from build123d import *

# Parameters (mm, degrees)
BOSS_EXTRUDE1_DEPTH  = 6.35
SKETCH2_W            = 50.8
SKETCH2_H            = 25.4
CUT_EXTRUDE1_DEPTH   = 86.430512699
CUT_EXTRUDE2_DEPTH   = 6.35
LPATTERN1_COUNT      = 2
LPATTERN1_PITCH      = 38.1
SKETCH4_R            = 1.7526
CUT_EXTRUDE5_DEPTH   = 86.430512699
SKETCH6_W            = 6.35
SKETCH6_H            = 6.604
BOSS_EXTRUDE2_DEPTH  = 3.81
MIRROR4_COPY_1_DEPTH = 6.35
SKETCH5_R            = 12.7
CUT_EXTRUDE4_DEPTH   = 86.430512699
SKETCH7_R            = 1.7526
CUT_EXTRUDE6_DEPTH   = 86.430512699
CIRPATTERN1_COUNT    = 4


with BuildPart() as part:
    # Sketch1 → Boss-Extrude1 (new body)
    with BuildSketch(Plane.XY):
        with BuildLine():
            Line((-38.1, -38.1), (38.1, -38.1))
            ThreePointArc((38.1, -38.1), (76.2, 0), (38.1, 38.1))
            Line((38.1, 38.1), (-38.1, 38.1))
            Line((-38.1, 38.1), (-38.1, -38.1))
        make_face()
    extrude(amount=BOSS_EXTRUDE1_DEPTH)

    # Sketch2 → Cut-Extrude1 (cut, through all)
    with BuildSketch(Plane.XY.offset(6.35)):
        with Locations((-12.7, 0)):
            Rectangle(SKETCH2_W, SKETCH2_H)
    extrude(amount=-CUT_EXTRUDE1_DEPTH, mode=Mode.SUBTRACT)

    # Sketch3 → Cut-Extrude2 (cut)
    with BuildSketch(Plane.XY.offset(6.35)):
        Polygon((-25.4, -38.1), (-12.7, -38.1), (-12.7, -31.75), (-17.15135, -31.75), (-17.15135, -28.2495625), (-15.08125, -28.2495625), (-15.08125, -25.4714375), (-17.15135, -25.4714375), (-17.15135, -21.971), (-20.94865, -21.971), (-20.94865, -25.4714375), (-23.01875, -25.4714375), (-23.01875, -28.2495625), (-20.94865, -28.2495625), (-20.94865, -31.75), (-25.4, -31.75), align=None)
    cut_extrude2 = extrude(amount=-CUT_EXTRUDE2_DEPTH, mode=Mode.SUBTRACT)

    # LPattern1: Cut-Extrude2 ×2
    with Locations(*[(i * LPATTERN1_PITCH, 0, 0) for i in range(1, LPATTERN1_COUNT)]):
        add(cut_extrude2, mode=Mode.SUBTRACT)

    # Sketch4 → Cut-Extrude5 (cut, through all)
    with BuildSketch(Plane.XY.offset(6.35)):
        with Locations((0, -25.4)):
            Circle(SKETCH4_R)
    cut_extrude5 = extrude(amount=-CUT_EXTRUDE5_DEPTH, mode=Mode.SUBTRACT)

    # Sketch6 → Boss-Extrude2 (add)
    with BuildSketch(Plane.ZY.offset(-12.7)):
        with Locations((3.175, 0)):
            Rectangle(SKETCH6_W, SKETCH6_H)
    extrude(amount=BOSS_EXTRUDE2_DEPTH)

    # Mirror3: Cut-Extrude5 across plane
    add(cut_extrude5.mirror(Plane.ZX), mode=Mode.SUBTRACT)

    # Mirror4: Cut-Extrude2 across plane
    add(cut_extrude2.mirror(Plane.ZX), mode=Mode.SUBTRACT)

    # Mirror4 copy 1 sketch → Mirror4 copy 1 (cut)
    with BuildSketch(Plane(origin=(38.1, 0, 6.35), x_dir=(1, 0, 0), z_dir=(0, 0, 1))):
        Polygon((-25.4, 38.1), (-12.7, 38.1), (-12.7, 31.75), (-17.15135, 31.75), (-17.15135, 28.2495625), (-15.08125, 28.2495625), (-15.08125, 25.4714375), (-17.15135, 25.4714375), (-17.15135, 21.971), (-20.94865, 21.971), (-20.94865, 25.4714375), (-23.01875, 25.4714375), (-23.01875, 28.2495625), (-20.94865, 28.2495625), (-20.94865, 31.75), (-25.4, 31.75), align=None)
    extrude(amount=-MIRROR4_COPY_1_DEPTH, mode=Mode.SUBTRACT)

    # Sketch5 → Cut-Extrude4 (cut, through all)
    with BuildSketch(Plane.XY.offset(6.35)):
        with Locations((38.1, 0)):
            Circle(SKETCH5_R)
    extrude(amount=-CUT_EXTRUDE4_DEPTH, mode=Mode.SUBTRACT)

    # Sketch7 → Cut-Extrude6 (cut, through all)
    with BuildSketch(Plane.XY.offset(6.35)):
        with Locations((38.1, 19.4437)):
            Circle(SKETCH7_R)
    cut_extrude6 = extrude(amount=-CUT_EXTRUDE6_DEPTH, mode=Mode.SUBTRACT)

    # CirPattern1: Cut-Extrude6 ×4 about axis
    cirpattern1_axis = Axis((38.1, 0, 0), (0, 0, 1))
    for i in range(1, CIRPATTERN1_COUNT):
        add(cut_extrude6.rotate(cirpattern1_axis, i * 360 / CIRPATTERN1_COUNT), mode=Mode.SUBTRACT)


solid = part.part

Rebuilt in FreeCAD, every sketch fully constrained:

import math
import FreeCAD as App
import Part
import Sketcher

V = App.Vector
Q = App.Units.Quantity


def add_polygon(sketch, points):
    """Adds a closed chain of lines whose ends are joined by coincident constraints."""
    first, n = sketch.GeometryCount, len(points)
    for a, b in zip(points, points[1:] + points[:1]):
        sketch.addGeometry(Part.LineSegment(App.Vector(*a, 0), App.Vector(*b, 0)), False)
    for i in range(n):
        sketch.addConstraint(Sketcher.Constraint("Coincident", first + i, 2, first + (i + 1) % n, 1))

doc = App.newDocument("Part")
body = doc.addObject("PartDesign::Body", "Body")

sketch1 = doc.addObject("Sketcher::SketchObject", "Sketch")
body.addObject(sketch1)
sketch1.AttachmentSupport = (doc.XY_Plane, [""])
sketch1.MapMode = "FlatFace"
sketch1.addGeometry([
    Part.LineSegment(V(-38, -38, 0), V(38, -38, 0)),
    Part.ArcOfCircle(Part.Circle(V(38, 0, 0), V(0, 0, 1), 38), math.radians(-90), math.radians(90)),
    Part.LineSegment(V(38, 38, 0), V(-38, 38, 0)),
    Part.LineSegment(V(-38, 38, 0), V(-38, -38, 0)),
], False)
sketch1.addConstraint([
    Sketcher.Constraint("Tangent", 0, 2, 1, 1),
    Sketcher.Constraint("Tangent", 1, 2, 2, 1),
    Sketcher.Constraint("Coincident", 2, 2, 3, 1),
    Sketcher.Constraint("Coincident", 3, 2, 0, 1),
    Sketcher.Constraint("Horizontal", 0),
    Sketcher.Constraint("Horizontal", 2),
    Sketcher.Constraint("Vertical", 3),
    Sketcher.Constraint("Symmetric", 0, 2, 2, 2, -1, 1),
    Sketcher.Constraint("Equal", 2, 3),
    Sketcher.Constraint("Radius", 1, Q("1.5 in")),
])
pad1 = doc.addObject("PartDesign::Pad", "Pad")
body.addObject(pad1)
pad1.Profile = sketch1
pad1.Length = Q("0.25 in")

sketch2 = doc.addObject("Sketcher::SketchObject", "Sketch001")
body.addObject(sketch2)
sketch2.AttachmentSupport = (doc.XY_Plane, [""])
sketch2.MapMode = "FlatFace"
sketch2.AttachmentOffset = App.Placement(V(0, 0, 0.25 * 25.4), App.Rotation())
add_polygon(sketch2, [(-38, 13), (-38, -13), (13, -13), (13, 13)])
sketch2.addConstraint([
    Sketcher.Constraint("Vertical", 0),
    Sketcher.Constraint("Horizontal", 1),
    Sketcher.Constraint("Vertical", 2),
    Sketcher.Constraint("Horizontal", 3),
    Sketcher.Constraint("DistanceX", 1, 1, 1, 2, Q("2 in")),
    Sketcher.Constraint("DistanceY", 0, 2, 0, 1, Q("1 in")),
    Sketcher.Constraint("DistanceX", 0, 2, -1, 1, Q("1.5 in")),
    Sketcher.Constraint("DistanceY", 0, 2, -1, 1, Q("0.5 in")),
])
pocket1 = doc.addObject("PartDesign::Pocket", "Pocket")
body.addObject(pocket1)
pocket1.Profile = sketch2
pocket1.Type = "ThroughAll"

sketch3 = doc.addObject("Sketcher::SketchObject", "Sketch002")
body.addObject(sketch3)
sketch3.AttachmentSupport = (doc.XY_Plane, [""])
sketch3.MapMode = "FlatFace"
sketch3.AttachmentOffset = App.Placement(V(0, 0, 0.25 * 25.4), App.Rotation())
add_polygon(sketch3, [(-25.4, -38.1), (-12.7, -38.1), (-12.7, -31.8), (-17.2, -31.8), (-17.2, -28.2), (-15.1, -28.2), (-15.1, -25.5), (-17.2, -25.5), (-17.2, -22), (-20.9, -22), (-20.9, -25.5), (-23, -25.5), (-23, -28.2), (-20.9, -28.2), (-20.9, -31.8), (-25.4, -31.8)])
sketch3.addConstraint([
    Sketcher.Constraint("Horizontal", 0),
    Sketcher.Constraint("Vertical", 1),
    Sketcher.Constraint("Horizontal", 2),
    Sketcher.Constraint("Vertical", 3),
    Sketcher.Constraint("Horizontal", 4),
    Sketcher.Constraint("Vertical", 5),
    Sketcher.Constraint("Horizontal", 6),
    Sketcher.Constraint("Vertical", 7),
    Sketcher.Constraint("Horizontal", 8),
    Sketcher.Constraint("Vertical", 9),
    Sketcher.Constraint("Horizontal", 10),
    Sketcher.Constraint("Vertical", 11),
    Sketcher.Constraint("Horizontal", 12),
    Sketcher.Constraint("Vertical", 13),
    Sketcher.Constraint("Horizontal", 14),
    Sketcher.Constraint("Vertical", 15),
    Sketcher.Constraint("Horizontal", 6, 2, 9, 2),
    Sketcher.Constraint("Horizontal", 4, 2, 11, 2),
    Sketcher.Constraint("Horizontal", 2, 2, 13, 2),
    Sketcher.Constraint("Vertical", 3, 2, 6, 2),
    Sketcher.Constraint("Vertical", 9, 2, 12, 2),
    Sketcher.Constraint("Equal", 6, 10),
    Sketcher.Constraint("Equal", 2, 14),
    Sketcher.Constraint("Equal", 3, 7),
    Sketcher.Constraint("DistanceX", 0, 1, 0, 2, Q("0.5 in")),
    Sketcher.Constraint("DistanceX", 14, 2, -1, 1, Q("1 in")),
    Sketcher.Constraint("DistanceY", 1, 1, 1, 2, Q("0.25 in")),
    Sketcher.Constraint("DistanceY", 0, 2, -1, 1, Q("1.5 in")),
    Sketcher.Constraint("DistanceY", 5, 1, 5, 2, Q("0.109375 in")),
    Sketcher.Constraint("DistanceX", 4, 1, 4, 2, Q("0.0815 in")),
    Sketcher.Constraint("DistanceX", 8, 2, 8, 1, Q("0.1495 in")),
    Sketcher.Constraint("DistanceY", 7, 2, -1, 1, Q("0.865 in")),
])
pocket2 = doc.addObject("PartDesign::Pocket", "Pocket001")
body.addObject(pocket2)
pocket2.Profile = sketch3
pocket2.Length = Q("0.25 in")
doc.recompute()

linearpattern = doc.addObject("PartDesign::LinearPattern", "LinearPattern")
body.addObject(linearpattern)
linearpattern.Originals = [pocket2]
linearpattern.Direction = (doc.X_Axis, [""])
linearpattern.Mode = "offset"
linearpattern.Offset = Q("1.5 in")
linearpattern.Occurrences = 2
body.Tip = linearpattern

sketch4 = doc.addObject("Sketcher::SketchObject", "Sketch003")
body.addObject(sketch4)
sketch4.AttachmentSupport = (doc.XY_Plane, [""])
sketch4.MapMode = "FlatFace"
sketch4.AttachmentOffset = App.Placement(V(0, 0, 0.25 * 25.4), App.Rotation())
sketch4.addGeometry(Part.Circle(V(0, -25.4, 0), V(0, 0, 1), 1.8), False)
sketch4.addConstraint([
    Sketcher.Constraint("PointOnObject", 0, 3, -2),
    Sketcher.Constraint("Diameter", 0, Q("0.138 in")),
    Sketcher.Constraint("DistanceY", 0, 3, -1, 1, Q("1 in")),
])
pocket3 = doc.addObject("PartDesign::Pocket", "Pocket002")
body.addObject(pocket3)
pocket3.Profile = sketch4
pocket3.Type = "ThroughAll"

sketch5 = doc.addObject("Sketcher::SketchObject", "Sketch004")
body.addObject(sketch5)
sketch5.AttachmentSupport = (doc.YZ_Plane, [""])
sketch5.MapMode = "FlatFace"
sketch5.AttachmentOffset = App.Placement(V(0, 0, 0.5 * 25.4), App.Rotation())
add_polygon(sketch5, [(3, 0), (-3, 0), (-3, 6), (3, 6)])
sketch5.addConstraint([
    Sketcher.Constraint("Horizontal", 0),
    Sketcher.Constraint("Vertical", 1),
    Sketcher.Constraint("Horizontal", 2),
    Sketcher.Constraint("Vertical", 3),
    Sketcher.Constraint("Symmetric", 0, 2, 3, 2, -1, 1),
    Sketcher.Constraint("DistanceX", 0, 2, 0, 1, Q("0.26 in")),
    Sketcher.Constraint("DistanceY", 1, 1, 1, 2, Q("0.25 in")),
])
pad2 = doc.addObject("PartDesign::Pad", "Pad001")
body.addObject(pad2)
pad2.Profile = sketch5
pad2.Length = Q("0.15 in")
pad2.Reversed = True
doc.recompute()

mirrored = doc.addObject("PartDesign::Mirrored", "Mirrored")
body.addObject(mirrored)
mirrored.Originals = [pocket3]
mirrored.MirrorPlane = (doc.XZ_Plane, [""])
body.Tip = mirrored
doc.recompute()

mirrored2 = doc.addObject("PartDesign::Mirrored", "Mirrored001")
body.addObject(mirrored2)
mirrored2.Originals = [pocket2]
mirrored2.MirrorPlane = (doc.XZ_Plane, [""])
body.Tip = mirrored2

sketch6 = doc.addObject("Sketcher::SketchObject", "Sketch005")
body.addObject(sketch6)
sketch6.AttachmentSupport = (doc.XY_Plane, [""])
sketch6.MapMode = "FlatFace"
sketch6.AttachmentOffset = App.Placement(V(0, 0, 0.25 * 25.4), App.Rotation())
add_polygon(sketch6, [(25.4, 38.1), (12.7, 38.1), (12.7, 31.8), (17.2, 31.8), (17.2, 28.2), (15.1, 28.2), (15.1, 25.5), (17.2, 25.5), (17.2, 22), (20.9, 22), (20.9, 25.5), (23, 25.5), (23, 28.2), (20.9, 28.2), (20.9, 31.8), (25.4, 31.8)])
sketch6.addConstraint([
    Sketcher.Constraint("Horizontal", 0),
    Sketcher.Constraint("Vertical", 1),
    Sketcher.Constraint("Horizontal", 2),
    Sketcher.Constraint("Vertical", 3),
    Sketcher.Constraint("Horizontal", 4),
    Sketcher.Constraint("Vertical", 5),
    Sketcher.Constraint("Horizontal", 6),
    Sketcher.Constraint("Vertical", 7),
    Sketcher.Constraint("Horizontal", 8),
    Sketcher.Constraint("Vertical", 9),
    Sketcher.Constraint("Horizontal", 10),
    Sketcher.Constraint("Vertical", 11),
    Sketcher.Constraint("Horizontal", 12),
    Sketcher.Constraint("Vertical", 13),
    Sketcher.Constraint("Horizontal", 14),
    Sketcher.Constraint("Vertical", 15),
    Sketcher.Constraint("Horizontal", 6, 2, 9, 2),
    Sketcher.Constraint("Horizontal", 4, 2, 11, 2),
    Sketcher.Constraint("Horizontal", 2, 2, 13, 2),
    Sketcher.Constraint("Vertical", 3, 2, 6, 2),
    Sketcher.Constraint("Vertical", 9, 2, 12, 2),
    Sketcher.Constraint("Equal", 6, 10),
    Sketcher.Constraint("Equal", 2, 14),
    Sketcher.Constraint("Equal", 3, 7),
    Sketcher.Constraint("DistanceX", 0, 2, 0, 1, Q("0.5 in")),
    Sketcher.Constraint("DistanceX", -1, 1, 14, 2, Q("1 in")),
    Sketcher.Constraint("DistanceY", 1, 2, 1, 1, Q("0.25 in")),
    Sketcher.Constraint("DistanceY", -1, 1, 0, 2, Q("1.5 in")),
    Sketcher.Constraint("DistanceY", 5, 2, 5, 1, Q("0.109375 in")),
    Sketcher.Constraint("DistanceX", 4, 2, 4, 1, Q("0.0815 in")),
    Sketcher.Constraint("DistanceX", 8, 1, 8, 2, Q("0.1495 in")),
    Sketcher.Constraint("DistanceY", -1, 1, 7, 2, Q("0.865 in")),
])
pocket4 = doc.addObject("PartDesign::Pocket", "Pocket003")
body.addObject(pocket4)
pocket4.Profile = sketch6
pocket4.Length = Q("0.25 in")

sketch7 = doc.addObject("Sketcher::SketchObject", "Sketch006")
body.addObject(sketch7)
sketch7.AttachmentSupport = (doc.XY_Plane, [""])
sketch7.MapMode = "FlatFace"
sketch7.AttachmentOffset = App.Placement(V(0, 0, 0.25 * 25.4), App.Rotation())
sketch7.addGeometry(Part.Circle(V(38, 0, 0), V(0, 0, 1), 13), False)
sketch7.addConstraint([
    Sketcher.Constraint("PointOnObject", 0, 3, -1),
    Sketcher.Constraint("Diameter", 0, Q("1 in")),
    Sketcher.Constraint("DistanceX", -1, 1, 0, 3, Q("1.5 in")),
])
pocket5 = doc.addObject("PartDesign::Pocket", "Pocket004")
body.addObject(pocket5)
pocket5.Profile = sketch7
pocket5.Type = "ThroughAll"

sketch8 = doc.addObject("Sketcher::SketchObject", "Sketch007")
body.addObject(sketch8)
sketch8.AttachmentSupport = (doc.XY_Plane, [""])
sketch8.MapMode = "FlatFace"
sketch8.AttachmentOffset = App.Placement(V(0, 0, 0.25 * 25.4), App.Rotation())
sketch8.addGeometry(Part.Circle(V(38.1, 19.4, 0), V(0, 0, 1), 1.8), False)
sketch8.addConstraint([
    Sketcher.Constraint("Diameter", 0, Q("0.138 in")),
    Sketcher.Constraint("DistanceX", -1, 1, 0, 3, Q("1.5 in")),
    Sketcher.Constraint("DistanceY", -1, 1, 0, 3, Q("0.7655 in")),
])
pocket6 = doc.addObject("PartDesign::Pocket", "Pocket005")
body.addObject(pocket6)
pocket6.Profile = sketch8
pocket6.Type = "ThroughAll"
doc.recompute()

datumline = doc.addObject("PartDesign::Line", "DatumLine")
body.addObject(datumline)
datumline.Placement = App.Placement(V(38.1, 0, 0), App.Rotation(V(0, 0, 1), V(0, 0, 1)))
polarpattern = doc.addObject("PartDesign::PolarPattern", "PolarPattern")
body.addObject(polarpattern)
polarpattern.Originals = [pocket6]
polarpattern.Axis = (datumline, [""])
polarpattern.Angle = 360
polarpattern.Occurrences = 4
body.Tip = polarpattern

doc.recompute()
